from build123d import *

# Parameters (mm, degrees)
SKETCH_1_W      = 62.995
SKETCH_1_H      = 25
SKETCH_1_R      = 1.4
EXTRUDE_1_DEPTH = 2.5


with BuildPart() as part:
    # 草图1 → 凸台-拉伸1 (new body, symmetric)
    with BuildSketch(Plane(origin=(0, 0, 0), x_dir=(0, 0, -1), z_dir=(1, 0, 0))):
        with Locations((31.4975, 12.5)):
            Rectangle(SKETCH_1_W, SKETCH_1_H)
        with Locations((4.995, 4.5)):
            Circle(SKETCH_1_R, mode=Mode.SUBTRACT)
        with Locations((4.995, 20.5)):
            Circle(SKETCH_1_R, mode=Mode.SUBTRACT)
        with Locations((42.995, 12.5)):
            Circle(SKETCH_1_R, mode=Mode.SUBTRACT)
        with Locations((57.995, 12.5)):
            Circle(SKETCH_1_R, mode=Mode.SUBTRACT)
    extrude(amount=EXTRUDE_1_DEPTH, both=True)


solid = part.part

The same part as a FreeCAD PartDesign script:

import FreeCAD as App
import Part
import Sketcher
from FreeCAD import Vector


def add_polygon(sketch, points):
    """Adds a closed chain of lines whose ends are joined by coincident constraints."""
    first, n = sketch.GeometryCount, len(points)
    for a, b in zip(points, points[1:] + points[:1]):
        sketch.addGeometry(Part.LineSegment(App.Vector(*a, 0), App.Vector(*b, 0)), False)
    for i in range(n):
        sketch.addConstraint(Sketcher.Constraint("Coincident", first + i, 2, first + (i + 1) % n, 1))

doc = App.newDocument("Part")
params = doc.addObject("Spreadsheet::Sheet", "Params")
for row, (alias, value) in enumerate([
    ("sketch1_diameter", "2.8 mm"),
    ("sketch1_width", "25 mm"),
    ("pad1_length", "5 mm"),
], start=1):
    params.set(f"A{row}", alias)
    params.set(f"B{row}", "=" + value)
    params.setAlias(f"B{row}", alias)

body = doc.addObject("PartDesign::Body", "Body")

sketch1 = body.newObject("Sketcher::SketchObject", "Sketch")
sketch1.AttachmentSupport = (doc.getObject("YZ_Plane"), [""])
sketch1.MapMode = "FlatFace"
add_polygon(sketch1, [(25, 0), (0, 0), (0, -63), (25, -63)])
sketch1.addGeometry(Part.Circle(Vector(4.5, -5, 0), Vector(0, 0, 1), 1.4), False)
sketch1.addGeometry(Part.Circle(Vector(20.5, -5, 0), Vector(0, 0, 1), 1.4), False)
sketch1.addGeometry(Part.Circle(Vector(12.5, -43, 0), Vector(0, 0, 1), 1.4), False)
sketch1.addGeometry(Part.Circle(Vector(12.5, -58, 0), Vector(0, 0, 1), 1.4), False)
sketch1.addConstraint([
    Sketcher.Constraint("Horizontal", 0),
    Sketcher.Constraint("Vertical", 1),
    Sketcher.Constraint("Horizontal", 2),
    Sketcher.Constraint("Vertical", 3),
    Sketcher.Constraint("Coincident", 0, 2, -1, 1),
    Sketcher.Constraint("Equal", 4, 5),
    Sketcher.Constraint("Equal", 5, 6),
    Sketcher.Constraint("Equal", 6, 7),
    Sketcher.Constraint("Horizontal", 4, 3, 5, 3),
    Sketcher.Constraint("Vertical", 6, 3, 7, 3),
    Sketcher.Constraint("Diameter", 4, 2.8),
    Sketcher.Constraint("DistanceX", 0, 2, 0, 1, 25.0),
    Sketcher.Constraint("DistanceX", 4, 3, 5, 3, 16.0),
    Sketcher.Constraint("DistanceX", 4, 3, 6, 3, 8.0),
    Sketcher.Constraint("DistanceY", 6, 3, 4, 3, 38.0),
    Sketcher.Constraint("DistanceY", 7, 3, 6, 3, 15.0),
    Sketcher.Constraint("DistanceY", 1, 2, 7, 3, 5.0),
    Sketcher.Constraint("DistanceX", -1, 1, 4, 3, 4.5),
    Sketcher.Constraint("DistanceY", 1, 2, 1, 1, 62.995),
])
sketch1.setExpression("Constraints[14]", "Params.sketch1_diameter")
sketch1.setExpression("Constraints[15]", "Params.sketch1_width")
pad1 = body.newObject("PartDesign::Pad", "Pad")
pad1.Profile = sketch1
pad1.setExpression("Length", "Params.pad1_length")
pad1.Midplane = True

doc.recompute()
